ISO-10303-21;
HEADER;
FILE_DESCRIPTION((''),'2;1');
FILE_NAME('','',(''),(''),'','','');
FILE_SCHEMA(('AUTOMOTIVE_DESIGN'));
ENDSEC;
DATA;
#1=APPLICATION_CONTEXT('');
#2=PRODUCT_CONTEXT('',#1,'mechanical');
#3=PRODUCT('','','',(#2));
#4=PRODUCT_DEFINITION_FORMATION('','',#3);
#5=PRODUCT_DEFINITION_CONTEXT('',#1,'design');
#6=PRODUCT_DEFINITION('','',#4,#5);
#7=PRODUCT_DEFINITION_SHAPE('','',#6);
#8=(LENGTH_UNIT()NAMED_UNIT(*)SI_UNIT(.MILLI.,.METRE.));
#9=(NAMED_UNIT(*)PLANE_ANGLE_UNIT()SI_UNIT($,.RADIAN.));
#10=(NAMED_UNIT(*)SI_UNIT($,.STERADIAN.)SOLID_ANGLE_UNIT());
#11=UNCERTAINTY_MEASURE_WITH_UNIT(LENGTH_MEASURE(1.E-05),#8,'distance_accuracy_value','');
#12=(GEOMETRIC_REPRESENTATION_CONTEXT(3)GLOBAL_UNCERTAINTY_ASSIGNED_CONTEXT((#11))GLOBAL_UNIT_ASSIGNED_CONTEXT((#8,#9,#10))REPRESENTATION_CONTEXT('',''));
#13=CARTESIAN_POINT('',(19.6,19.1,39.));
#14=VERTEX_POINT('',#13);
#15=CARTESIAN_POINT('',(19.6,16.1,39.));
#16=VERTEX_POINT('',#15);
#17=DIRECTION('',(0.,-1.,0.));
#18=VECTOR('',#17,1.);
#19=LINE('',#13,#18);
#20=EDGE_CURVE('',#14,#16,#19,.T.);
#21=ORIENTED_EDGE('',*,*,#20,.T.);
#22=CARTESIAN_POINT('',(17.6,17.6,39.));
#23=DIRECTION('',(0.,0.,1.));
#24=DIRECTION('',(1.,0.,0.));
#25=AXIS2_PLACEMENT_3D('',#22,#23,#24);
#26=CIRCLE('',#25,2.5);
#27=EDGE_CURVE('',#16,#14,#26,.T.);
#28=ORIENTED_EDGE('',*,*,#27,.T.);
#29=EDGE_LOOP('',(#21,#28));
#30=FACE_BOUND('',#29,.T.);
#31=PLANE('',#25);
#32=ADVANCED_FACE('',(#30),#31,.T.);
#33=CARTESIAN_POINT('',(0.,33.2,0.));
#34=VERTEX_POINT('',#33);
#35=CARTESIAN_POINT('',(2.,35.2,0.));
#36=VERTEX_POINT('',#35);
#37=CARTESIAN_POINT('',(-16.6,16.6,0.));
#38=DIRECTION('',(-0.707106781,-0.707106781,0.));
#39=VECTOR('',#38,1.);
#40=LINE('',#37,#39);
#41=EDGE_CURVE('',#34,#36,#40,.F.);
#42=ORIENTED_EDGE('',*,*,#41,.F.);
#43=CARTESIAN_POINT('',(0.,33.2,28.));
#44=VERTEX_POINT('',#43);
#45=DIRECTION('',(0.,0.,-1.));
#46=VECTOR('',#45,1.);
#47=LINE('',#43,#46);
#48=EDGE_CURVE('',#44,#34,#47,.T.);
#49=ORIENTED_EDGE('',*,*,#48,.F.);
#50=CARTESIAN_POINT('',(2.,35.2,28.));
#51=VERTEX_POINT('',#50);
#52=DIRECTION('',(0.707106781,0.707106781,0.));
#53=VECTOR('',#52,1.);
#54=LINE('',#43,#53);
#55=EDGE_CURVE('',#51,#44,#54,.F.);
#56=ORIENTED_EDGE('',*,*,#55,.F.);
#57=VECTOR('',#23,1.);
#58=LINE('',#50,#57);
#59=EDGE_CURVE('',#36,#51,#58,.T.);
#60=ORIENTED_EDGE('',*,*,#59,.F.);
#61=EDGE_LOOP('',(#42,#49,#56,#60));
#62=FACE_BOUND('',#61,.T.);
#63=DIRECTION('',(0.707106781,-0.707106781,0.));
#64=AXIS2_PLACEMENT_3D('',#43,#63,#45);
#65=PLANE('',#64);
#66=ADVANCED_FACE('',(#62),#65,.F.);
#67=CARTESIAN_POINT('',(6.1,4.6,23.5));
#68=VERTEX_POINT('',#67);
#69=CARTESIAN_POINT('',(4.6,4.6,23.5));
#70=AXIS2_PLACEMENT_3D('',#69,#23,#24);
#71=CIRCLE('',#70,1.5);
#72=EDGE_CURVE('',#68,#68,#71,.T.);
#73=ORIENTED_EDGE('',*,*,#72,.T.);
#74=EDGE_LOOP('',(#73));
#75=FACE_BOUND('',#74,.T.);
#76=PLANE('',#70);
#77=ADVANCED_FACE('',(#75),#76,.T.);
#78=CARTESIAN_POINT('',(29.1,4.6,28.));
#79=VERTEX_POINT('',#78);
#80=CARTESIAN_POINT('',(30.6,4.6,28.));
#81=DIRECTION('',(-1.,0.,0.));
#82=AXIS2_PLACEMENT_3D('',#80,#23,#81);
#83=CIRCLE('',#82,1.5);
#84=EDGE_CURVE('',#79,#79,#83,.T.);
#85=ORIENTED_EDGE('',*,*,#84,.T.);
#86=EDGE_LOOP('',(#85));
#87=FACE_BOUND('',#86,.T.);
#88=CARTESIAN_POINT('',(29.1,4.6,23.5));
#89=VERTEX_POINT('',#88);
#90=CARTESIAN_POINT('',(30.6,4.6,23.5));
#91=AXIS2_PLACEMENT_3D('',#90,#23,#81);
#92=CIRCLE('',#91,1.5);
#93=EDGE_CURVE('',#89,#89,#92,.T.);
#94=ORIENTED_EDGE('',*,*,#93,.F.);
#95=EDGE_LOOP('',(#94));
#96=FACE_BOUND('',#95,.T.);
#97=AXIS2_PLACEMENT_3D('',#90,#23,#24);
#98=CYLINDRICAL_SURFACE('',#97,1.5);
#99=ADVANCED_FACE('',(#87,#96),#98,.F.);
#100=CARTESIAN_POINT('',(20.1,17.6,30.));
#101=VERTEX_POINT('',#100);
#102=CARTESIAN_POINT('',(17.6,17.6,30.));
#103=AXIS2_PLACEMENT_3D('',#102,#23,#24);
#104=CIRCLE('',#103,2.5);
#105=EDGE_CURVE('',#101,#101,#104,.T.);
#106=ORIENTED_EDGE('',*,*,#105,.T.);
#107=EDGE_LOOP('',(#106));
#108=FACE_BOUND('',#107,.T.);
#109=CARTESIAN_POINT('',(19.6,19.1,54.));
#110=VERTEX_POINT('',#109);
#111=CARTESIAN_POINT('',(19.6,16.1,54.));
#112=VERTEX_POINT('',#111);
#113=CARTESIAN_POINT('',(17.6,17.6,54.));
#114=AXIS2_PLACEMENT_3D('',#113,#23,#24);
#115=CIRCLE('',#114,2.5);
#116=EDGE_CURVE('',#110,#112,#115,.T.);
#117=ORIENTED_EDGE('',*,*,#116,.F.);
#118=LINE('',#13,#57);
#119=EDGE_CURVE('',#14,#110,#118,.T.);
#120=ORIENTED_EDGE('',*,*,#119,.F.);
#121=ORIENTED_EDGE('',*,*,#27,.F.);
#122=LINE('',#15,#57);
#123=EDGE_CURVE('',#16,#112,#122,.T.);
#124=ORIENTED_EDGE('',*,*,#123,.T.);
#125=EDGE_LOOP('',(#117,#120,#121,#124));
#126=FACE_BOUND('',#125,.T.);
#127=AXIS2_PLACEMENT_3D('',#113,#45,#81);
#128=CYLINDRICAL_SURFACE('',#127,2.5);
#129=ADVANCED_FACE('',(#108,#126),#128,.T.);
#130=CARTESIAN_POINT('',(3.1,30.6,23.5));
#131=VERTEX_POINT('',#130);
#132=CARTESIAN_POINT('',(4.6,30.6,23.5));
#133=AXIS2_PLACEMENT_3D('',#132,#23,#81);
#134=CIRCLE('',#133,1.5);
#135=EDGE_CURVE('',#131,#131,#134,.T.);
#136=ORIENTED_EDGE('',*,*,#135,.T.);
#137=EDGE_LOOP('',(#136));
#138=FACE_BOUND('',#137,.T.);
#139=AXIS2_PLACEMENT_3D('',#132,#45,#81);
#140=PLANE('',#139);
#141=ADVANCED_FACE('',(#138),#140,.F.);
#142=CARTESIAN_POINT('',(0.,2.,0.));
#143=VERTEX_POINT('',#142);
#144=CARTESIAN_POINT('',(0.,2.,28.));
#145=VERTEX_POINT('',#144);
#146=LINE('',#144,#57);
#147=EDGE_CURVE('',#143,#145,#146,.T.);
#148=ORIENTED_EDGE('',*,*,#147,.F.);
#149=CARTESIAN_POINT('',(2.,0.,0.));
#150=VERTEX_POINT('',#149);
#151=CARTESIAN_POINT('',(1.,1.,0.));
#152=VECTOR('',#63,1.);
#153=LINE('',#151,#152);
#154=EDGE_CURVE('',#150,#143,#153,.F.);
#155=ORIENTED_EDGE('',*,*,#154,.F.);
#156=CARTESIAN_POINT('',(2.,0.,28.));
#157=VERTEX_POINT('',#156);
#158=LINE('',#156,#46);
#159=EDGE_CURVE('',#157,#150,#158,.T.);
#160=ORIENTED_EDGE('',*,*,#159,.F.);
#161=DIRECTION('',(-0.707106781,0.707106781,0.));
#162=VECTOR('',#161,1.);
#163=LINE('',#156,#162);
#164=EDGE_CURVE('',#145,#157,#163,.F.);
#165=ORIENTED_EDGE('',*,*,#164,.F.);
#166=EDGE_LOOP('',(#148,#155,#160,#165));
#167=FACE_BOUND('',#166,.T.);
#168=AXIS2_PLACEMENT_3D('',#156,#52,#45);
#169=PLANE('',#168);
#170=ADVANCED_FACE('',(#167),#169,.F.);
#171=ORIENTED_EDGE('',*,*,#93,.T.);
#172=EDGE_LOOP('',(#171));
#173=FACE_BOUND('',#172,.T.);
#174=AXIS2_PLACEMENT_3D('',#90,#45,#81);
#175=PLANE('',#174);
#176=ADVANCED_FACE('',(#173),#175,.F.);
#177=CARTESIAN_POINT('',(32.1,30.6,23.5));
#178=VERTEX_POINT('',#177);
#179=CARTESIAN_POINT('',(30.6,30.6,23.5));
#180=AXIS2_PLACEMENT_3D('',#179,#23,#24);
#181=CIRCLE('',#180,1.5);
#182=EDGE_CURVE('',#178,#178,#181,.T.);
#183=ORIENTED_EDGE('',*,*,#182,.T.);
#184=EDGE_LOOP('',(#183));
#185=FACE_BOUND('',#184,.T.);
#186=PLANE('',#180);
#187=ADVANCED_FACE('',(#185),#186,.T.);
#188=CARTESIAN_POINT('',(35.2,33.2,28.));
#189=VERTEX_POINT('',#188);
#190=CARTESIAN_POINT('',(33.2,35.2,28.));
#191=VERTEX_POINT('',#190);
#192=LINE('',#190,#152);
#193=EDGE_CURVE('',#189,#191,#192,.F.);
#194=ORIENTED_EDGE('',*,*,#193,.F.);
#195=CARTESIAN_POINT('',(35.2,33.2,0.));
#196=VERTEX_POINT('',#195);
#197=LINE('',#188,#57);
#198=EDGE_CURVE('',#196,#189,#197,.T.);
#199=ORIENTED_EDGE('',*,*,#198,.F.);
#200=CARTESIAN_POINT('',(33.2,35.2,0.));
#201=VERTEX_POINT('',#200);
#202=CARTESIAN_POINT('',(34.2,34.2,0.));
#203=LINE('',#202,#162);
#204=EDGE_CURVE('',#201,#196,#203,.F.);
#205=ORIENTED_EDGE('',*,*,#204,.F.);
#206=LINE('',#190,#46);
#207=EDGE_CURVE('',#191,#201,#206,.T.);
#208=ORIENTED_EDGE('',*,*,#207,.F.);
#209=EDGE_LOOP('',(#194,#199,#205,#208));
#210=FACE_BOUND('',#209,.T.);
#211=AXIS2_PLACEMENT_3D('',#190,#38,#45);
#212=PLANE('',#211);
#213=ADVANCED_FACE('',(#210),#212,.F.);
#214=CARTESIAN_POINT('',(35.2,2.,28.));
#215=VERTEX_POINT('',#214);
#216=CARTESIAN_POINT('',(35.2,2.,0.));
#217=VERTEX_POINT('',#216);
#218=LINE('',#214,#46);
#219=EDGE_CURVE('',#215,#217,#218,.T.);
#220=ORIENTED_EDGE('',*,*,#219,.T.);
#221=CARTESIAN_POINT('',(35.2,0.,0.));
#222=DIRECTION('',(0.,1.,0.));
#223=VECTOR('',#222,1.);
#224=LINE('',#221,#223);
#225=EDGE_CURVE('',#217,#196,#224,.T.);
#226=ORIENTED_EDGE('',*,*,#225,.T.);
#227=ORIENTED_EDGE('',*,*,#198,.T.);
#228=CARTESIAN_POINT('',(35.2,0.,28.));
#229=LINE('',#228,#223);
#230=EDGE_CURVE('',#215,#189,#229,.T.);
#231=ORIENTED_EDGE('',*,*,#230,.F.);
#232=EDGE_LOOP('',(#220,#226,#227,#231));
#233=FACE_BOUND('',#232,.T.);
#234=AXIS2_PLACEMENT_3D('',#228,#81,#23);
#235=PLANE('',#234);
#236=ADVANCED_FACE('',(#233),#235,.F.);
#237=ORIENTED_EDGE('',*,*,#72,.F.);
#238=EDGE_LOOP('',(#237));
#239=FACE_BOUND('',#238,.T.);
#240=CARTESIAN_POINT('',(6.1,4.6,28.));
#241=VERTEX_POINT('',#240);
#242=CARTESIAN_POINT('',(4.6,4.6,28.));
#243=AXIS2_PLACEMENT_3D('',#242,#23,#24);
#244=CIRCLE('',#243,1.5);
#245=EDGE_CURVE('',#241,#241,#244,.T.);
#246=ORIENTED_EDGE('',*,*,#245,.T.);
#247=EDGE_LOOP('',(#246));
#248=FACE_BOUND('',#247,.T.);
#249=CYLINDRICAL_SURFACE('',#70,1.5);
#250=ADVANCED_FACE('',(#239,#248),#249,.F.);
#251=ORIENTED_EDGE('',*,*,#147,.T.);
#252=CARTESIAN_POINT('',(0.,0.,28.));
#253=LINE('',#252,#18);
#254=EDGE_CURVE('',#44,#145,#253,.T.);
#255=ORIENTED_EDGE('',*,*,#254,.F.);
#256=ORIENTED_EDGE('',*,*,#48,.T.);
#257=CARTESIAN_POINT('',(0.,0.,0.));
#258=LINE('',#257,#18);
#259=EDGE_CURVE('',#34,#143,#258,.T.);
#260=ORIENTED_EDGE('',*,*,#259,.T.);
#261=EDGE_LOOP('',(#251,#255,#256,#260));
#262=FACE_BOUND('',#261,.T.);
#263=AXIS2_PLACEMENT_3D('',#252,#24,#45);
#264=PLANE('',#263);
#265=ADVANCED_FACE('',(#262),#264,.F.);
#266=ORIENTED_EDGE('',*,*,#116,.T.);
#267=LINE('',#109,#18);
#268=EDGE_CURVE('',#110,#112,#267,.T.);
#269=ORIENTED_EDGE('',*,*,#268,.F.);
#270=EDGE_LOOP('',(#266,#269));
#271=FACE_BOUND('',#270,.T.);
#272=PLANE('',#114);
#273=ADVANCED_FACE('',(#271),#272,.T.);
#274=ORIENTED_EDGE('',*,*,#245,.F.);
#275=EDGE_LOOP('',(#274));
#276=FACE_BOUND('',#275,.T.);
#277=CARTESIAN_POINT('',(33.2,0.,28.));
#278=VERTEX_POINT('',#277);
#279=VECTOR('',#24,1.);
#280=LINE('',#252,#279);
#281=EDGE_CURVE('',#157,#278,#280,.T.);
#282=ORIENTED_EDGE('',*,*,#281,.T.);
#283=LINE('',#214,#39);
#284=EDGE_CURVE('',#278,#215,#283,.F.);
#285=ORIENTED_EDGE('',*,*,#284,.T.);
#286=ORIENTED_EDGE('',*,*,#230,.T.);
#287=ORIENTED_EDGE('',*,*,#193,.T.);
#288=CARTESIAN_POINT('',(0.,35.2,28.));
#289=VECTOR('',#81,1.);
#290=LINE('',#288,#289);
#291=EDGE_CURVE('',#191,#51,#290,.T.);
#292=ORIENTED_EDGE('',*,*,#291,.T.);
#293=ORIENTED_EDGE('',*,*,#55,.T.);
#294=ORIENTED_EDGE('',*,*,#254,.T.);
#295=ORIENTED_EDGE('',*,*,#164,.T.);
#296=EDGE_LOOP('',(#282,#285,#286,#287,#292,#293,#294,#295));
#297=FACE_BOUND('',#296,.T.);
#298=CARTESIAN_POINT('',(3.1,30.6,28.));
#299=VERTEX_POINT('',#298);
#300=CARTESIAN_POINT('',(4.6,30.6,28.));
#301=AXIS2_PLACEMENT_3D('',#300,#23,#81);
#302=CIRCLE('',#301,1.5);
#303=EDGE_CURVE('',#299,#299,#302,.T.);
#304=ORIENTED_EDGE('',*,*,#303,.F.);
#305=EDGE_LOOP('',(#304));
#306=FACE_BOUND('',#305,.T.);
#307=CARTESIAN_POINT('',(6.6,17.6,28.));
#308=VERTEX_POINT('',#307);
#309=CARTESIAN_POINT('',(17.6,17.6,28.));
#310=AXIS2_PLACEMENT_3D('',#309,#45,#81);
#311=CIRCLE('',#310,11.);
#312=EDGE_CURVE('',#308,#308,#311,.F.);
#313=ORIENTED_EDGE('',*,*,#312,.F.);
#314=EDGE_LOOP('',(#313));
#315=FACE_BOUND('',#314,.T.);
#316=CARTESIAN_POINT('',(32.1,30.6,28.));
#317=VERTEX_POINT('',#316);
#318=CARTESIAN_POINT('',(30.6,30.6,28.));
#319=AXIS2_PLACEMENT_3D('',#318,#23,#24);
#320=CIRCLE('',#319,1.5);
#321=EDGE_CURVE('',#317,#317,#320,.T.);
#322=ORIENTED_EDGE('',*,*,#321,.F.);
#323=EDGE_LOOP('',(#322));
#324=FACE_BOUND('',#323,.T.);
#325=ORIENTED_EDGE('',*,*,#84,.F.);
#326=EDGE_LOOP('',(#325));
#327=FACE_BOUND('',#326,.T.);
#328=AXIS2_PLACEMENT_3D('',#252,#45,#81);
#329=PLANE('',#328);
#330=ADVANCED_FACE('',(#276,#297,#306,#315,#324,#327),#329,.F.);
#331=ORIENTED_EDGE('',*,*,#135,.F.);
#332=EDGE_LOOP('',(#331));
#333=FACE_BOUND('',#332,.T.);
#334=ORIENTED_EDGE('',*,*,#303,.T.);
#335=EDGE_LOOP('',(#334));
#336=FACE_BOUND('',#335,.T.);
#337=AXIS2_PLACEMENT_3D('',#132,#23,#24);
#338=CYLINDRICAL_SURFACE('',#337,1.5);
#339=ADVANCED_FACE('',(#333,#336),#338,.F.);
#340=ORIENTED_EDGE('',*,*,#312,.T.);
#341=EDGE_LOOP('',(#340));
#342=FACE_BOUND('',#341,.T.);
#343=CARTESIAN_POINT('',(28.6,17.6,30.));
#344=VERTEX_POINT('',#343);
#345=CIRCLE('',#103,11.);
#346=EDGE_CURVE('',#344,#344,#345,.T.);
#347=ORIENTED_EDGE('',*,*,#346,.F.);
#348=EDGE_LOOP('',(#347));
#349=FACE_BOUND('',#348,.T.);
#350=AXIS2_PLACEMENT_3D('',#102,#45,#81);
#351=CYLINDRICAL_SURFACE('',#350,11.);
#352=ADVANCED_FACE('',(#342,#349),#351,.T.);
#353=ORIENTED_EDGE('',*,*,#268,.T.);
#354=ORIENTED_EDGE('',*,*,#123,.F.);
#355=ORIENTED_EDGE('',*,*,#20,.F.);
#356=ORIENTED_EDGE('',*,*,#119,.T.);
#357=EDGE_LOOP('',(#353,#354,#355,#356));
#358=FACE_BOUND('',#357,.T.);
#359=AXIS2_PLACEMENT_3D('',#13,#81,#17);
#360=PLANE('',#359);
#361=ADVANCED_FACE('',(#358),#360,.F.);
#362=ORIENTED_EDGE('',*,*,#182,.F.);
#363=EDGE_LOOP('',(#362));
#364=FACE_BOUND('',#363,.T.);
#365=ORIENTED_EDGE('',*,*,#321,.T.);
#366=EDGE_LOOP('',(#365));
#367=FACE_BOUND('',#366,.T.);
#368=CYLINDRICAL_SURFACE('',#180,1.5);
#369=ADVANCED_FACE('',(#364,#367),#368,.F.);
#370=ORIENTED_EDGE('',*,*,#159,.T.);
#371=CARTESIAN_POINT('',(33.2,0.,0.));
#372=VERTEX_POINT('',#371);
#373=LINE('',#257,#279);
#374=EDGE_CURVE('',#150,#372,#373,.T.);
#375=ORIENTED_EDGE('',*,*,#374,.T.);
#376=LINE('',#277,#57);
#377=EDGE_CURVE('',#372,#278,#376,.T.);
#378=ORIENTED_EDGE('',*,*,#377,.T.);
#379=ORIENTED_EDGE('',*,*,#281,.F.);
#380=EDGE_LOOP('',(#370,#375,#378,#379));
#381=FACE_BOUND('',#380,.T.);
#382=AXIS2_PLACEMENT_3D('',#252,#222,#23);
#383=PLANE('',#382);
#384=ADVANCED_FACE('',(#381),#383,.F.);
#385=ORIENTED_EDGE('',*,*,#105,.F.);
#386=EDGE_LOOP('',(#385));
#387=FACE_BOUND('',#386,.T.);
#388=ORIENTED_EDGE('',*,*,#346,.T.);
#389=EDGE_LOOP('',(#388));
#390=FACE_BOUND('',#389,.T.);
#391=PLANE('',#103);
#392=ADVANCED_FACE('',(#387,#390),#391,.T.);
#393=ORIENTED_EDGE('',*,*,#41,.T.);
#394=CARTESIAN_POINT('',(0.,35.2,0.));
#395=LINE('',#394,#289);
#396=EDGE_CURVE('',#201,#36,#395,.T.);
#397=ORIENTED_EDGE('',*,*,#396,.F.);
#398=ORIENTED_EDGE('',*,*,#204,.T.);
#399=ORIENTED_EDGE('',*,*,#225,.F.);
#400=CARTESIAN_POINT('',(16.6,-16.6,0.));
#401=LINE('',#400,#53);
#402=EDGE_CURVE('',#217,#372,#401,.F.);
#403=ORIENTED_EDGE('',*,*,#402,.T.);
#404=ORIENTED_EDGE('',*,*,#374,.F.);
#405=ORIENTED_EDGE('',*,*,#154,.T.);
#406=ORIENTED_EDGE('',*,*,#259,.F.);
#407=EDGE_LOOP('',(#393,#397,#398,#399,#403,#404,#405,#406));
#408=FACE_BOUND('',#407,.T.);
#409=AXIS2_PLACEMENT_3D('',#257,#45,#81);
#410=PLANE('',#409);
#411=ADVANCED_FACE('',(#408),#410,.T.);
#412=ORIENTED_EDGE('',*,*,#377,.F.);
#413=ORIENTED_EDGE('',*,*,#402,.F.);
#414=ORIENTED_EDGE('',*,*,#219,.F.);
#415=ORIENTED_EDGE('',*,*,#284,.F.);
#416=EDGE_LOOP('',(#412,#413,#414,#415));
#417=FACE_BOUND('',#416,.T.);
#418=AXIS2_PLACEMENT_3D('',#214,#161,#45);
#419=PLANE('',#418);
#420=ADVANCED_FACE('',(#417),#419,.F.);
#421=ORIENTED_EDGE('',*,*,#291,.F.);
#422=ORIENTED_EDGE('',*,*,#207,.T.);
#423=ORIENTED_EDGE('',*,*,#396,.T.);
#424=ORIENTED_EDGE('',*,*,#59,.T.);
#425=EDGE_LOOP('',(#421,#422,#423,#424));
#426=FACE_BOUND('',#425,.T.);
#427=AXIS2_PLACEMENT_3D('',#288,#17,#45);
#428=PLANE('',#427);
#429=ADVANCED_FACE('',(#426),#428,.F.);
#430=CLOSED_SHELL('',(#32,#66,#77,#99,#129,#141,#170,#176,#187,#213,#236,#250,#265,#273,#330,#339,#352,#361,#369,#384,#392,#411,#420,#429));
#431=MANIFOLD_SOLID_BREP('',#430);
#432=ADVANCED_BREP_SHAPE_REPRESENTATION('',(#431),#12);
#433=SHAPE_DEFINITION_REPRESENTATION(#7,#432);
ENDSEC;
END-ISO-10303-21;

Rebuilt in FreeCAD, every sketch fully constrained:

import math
import FreeCAD as App
import Part
import Sketcher

V = App.Vector
Q = App.Units.Quantity


def edges_at(feature, points):
    """Names of the edges that pass closest to the given points."""
    edges = feature.Shape.Edges
    near = lambda p: min(range(len(edges)), key=lambda i: edges[i].distToShape(Part.Vertex(*p))[0])
    return sorted({f"Edge{near(p) + 1}" for p in points})


def add_polygon(sketch, points):
    """Adds a closed chain of lines whose ends are joined by coincident constraints."""
    first, n = sketch.GeometryCount, len(points)
    for a, b in zip(points, points[1:] + points[:1]):
        sketch.addGeometry(Part.LineSegment(App.Vector(*a, 0), App.Vector(*b, 0)), False)
    for i in range(n):
        sketch.addConstraint(Sketcher.Constraint("Coincident", first + i, 2, first + (i + 1) % n, 1))

doc = App.newDocument("Part")
body = doc.addObject("PartDesign::Body", "Body")

# Sketch on XY plane
sketch1 = doc.addObject("Sketcher::SketchObject", "Sketch")
body.addObject(sketch1)
sketch1.AttachmentSupport = (doc.XY_Plane, [""])
sketch1.MapMode = "FlatFace"
add_polygon(sketch1, [(0, 35), (0, 0), (35, 0), (35, 35)])  # lines 0-3
sketch1.addConstraint([
    Sketcher.Constraint("Vertical", 0),
    Sketcher.Constraint("Horizontal", 1),
    Sketcher.Constraint("Vertical", 2),
    Sketcher.Constraint("Horizontal", 3),
    Sketcher.Constraint("Coincident", 0, 2, -1, 1),
    Sketcher.Constraint("Equal", 3, 0),
    Sketcher.Constraint("DistanceX", 1, 1, 1, 2, Q("35.2 mm")),
])
pad1 = doc.addObject("PartDesign::Pad", "Pad")
body.addObject(pad1)
pad1.Profile = sketch1
pad1.Length = 28

# Sketch on XY plane
sketch2 = doc.addObject("Sketcher::SketchObject", "Sketch001")
body.addObject(sketch2)
sketch2.AttachmentSupport = (doc.XY_Plane, [""])
sketch2.MapMode = "FlatFace"
sketch2.AttachmentOffset = App.Placement(V(0, 0, 28), App.Rotation())
sketch2.addGeometry(Part.Circle(V(18, 18, 0), V(0, 0, 1), 11), False)
sketch2.addConstraint([
    Sketcher.Constraint("Diameter", 0, Q("22 mm")),
    Sketcher.Constraint("DistanceX", -1, 1, 0, 3, Q("17.6 mm")),
    Sketcher.Constraint("DistanceY", -1, 1, 0, 3, Q("17.6 mm")),
])
pad2 = doc.addObject("PartDesign::Pad", "Pad001")
body.addObject(pad2)
pad2.Profile = sketch2
pad2.Length = 2

# Sketch on XY plane
sketch3 = doc.addObject("Sketcher::SketchObject", "Sketch002")
body.addObject(sketch3)
sketch3.AttachmentSupport = (doc.XY_Plane, [""])
sketch3.MapMode = "FlatFace"
sketch3.AttachmentOffset = App.Placement(V(0, 0, 30), App.Rotation())
sketch3.addGeometry(Part.Circle(V(17.6, 17.6, 0), V(0, 0, 1), 2.5), False)
sketch3.addConstraint([
    Sketcher.Constraint("Diameter", 0, Q("5 mm")),
    Sketcher.Constraint("DistanceX", -1, 1, 0, 3, Q("17.6 mm")),
    Sketcher.Constraint("DistanceY", -1, 1, 0, 3, Q("17.6 mm")),
])
pad3 = doc.addObject("PartDesign::Pad", "Pad002")
body.addObject(pad3)
pad3.Profile = sketch3
pad3.Length = 24

# Sketch on XY plane
sketch4 = doc.addObject("Sketcher::SketchObject", "Sketch003")
body.addObject(sketch4)
sketch4.AttachmentSupport = (doc.XY_Plane, [""])
sketch4.MapMode = "FlatFace"
sketch4.AttachmentOffset = App.Placement(V(0, 0, 54), App.Rotation())
sketch4.addGeometry([
    Part.LineSegment(V(19.6, 19.1, 0), V(19.6, 16.1, 0)),
    Part.ArcOfCircle(Part.Circle(V(17.6, 17.6, 0), V(0, 0, 1), 2.5), math.radians(-37), math.radians(37)),
], False)
sketch4.addConstraint([
    Sketcher.Constraint("Coincident", 0, 1, 1, 2),
    Sketcher.Constraint("Coincident", 1, 1, 0, 2),
    Sketcher.Constraint("Vertical", 0),
    Sketcher.Constraint("Radius", 1, Q("2.5 mm")),
    Sketcher.Constraint("DistanceY", 0, 2, 0, 1, Q("3 mm")),
    Sketcher.Constraint("DistanceX", -1, 1, 1, 3, Q("17.6 mm")),
    Sketcher.Constraint("DistanceY", -1, 1, 1, 3, Q("17.6 mm")),
])
pocket1 = doc.addObject("PartDesign::Pocket", "Pocket")
body.addObject(pocket1)
pocket1.Profile = sketch4
pocket1.Length = 15
doc.recompute()

chamfer = doc.addObject("PartDesign::Chamfer", "Chamfer")
body.addObject(chamfer)
chamfer.Base = (pocket1, edges_at(pocket1, [
    (0, 35.2, 14),
    (35.2, 35.2, 14),
    (35.2, 0, 14),
    (0, 0, 14),
]))
chamfer.Size = 2

# Sketch on XY plane
sketch5 = doc.addObject("Sketcher::SketchObject", "Sketch004")
body.addObject(sketch5)
sketch5.AttachmentSupport = (doc.XY_Plane, [""])
sketch5.MapMode = "FlatFace"
sketch5.AttachmentOffset = App.Placement(V(0, 0, 28), App.Rotation())
sketch5.addGeometry([
    Part.Circle(V(30.6, 30.6, 0), V(0, 0, 1), 1.5),
    Part.Circle(V(30.6, 4.6, 0), V(0, 0, 1), 1.5),
    Part.Circle(V(4.6, 4.6, 0), V(0, 0, 1), 1.5),
    Part.Circle(V(4.6, 30.6, 0), V(0, 0, 1), 1.5),
], False)
sketch5.addConstraint([
    Sketcher.Constraint("Equal", 0, 1),
    Sketcher.Constraint("Equal", 1, 2),
    Sketcher.Constraint("Equal", 2, 3),
    Sketcher.Constraint("Horizontal", 1, 3, 2, 3),
    Sketcher.Constraint("Horizontal", 0, 3, 3, 3),
    Sketcher.Constraint("Vertical", 0, 3, 1, 3),
    Sketcher.Constraint("Vertical", 2, 3, 3, 3),
    Sketcher.Constraint("Diameter", 0, Q("3 mm")),
    Sketcher.Constraint("DistanceY", 1, 3, 0, 3, Q("26 mm")),
    Sketcher.Constraint("DistanceX", 2, 3, 1, 3, Q("26 mm")),
    Sketcher.Constraint("DistanceX", -1, 1, 0, 3, Q("30.6 mm")),
    Sketcher.Constraint("DistanceY", -1, 1, 0, 3, Q("30.6 mm")),
])
pocket2 = doc.addObject("PartDesign::Pocket", "Pocket001")
body.addObject(pocket2)
pocket2.Profile = sketch5
pocket2.Length = 4.5

doc.recompute()
